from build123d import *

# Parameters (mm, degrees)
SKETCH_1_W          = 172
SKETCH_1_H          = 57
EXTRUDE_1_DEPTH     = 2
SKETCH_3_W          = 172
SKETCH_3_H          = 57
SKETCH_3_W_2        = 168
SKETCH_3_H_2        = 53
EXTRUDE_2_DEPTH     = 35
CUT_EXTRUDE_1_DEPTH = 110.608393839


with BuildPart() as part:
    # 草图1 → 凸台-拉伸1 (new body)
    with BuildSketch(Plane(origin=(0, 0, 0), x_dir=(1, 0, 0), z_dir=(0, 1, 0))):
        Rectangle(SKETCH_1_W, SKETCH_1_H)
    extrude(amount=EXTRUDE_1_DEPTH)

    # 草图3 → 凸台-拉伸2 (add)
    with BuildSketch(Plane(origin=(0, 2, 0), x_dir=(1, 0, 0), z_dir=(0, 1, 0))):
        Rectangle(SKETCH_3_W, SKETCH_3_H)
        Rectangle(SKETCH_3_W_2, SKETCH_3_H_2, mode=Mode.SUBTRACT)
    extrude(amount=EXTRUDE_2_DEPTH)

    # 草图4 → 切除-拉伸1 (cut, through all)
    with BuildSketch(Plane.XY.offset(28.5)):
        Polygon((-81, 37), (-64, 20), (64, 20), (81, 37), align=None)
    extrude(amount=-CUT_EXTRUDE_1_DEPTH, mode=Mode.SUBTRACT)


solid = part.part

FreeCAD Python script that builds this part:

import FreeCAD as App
import Part
import Sketcher

V = App.Vector
Q = App.Units.Quantity

doc = App.newDocument("Part")
body = doc.addObject("PartDesign::Body", "Body")

sketch1 = body.newObject("Sketcher::SketchObject", "Sketch")
sketch1.AttachmentSupport = (doc.getObject("XZ_Plane"), [""])
sketch1.MapMode = "FlatFace"
sketch1.addGeometry([
    Part.LineSegment(V(-86, -28, 0), V(-86, 28, 0)),
    Part.LineSegment(V(-86, 28, 0), V(86, 28, 0)),
    Part.LineSegment(V(86, 28, 0), V(86, -28, 0)),
    Part.LineSegment(V(86, -28, 0), V(-86, -28, 0)),
], False)
sketch1.addConstraint([
    Sketcher.Constraint("Coincident", 0, 2, 1, 1),
    Sketcher.Constraint("Coincident", 1, 2, 2, 1),
    Sketcher.Constraint("Coincident", 2, 2, 3, 1),
    Sketcher.Constraint("Coincident", 3, 2, 0, 1),
    Sketcher.Constraint("Vertical", 0),
    Sketcher.Constraint("Horizontal", 1),
    Sketcher.Constraint("Vertical", 2),
    Sketcher.Constraint("Horizontal", 3),
    Sketcher.Constraint("Symmetric", 0, 2, 2, 2, -1, 1),
    Sketcher.Constraint("DistanceX", 1, 1, 1, 2, Q("172 mm")),
    Sketcher.Constraint("DistanceY", 0, 1, 0, 2, Q("57 mm")),
])
pad1 = body.newObject("PartDesign::Pad", "Pad")
pad1.Profile = sketch1
pad1.Length = 2
pad1.Reversed = True

sketch2 = body.newObject("Sketcher::SketchObject", "Sketch001")
sketch2.AttachmentSupport = (doc.getObject("XZ_Plane"), [""])
sketch2.MapMode = "FlatFace"
sketch2.AttachmentOffset = App.Placement(V(0, 0, -2), App.Rotation())
sketch2.addGeometry([
    Part.LineSegment(V(-86, -28, 0), V(-86, 28, 0)),
    Part.LineSegment(V(-86, 28, 0), V(86, 28, 0)),
    Part.LineSegment(V(86, 28, 0), V(86, -28, 0)),
    Part.LineSegment(V(86, -28, 0), V(-86, -28, 0)),
    Part.LineSegment(V(84, 26, 0), V(-84, 26, 0)),
    Part.LineSegment(V(-84, 26, 0), V(-84, -26, 0)),
    Part.LineSegment(V(-84, -26, 0), V(84, -26, 0)),
    Part.LineSegment(V(84, -26, 0), V(84, 26, 0)),
], False)
sketch2.addConstraint([
    Sketcher.Constraint("Coincident", 0, 2, 1, 1),
    Sketcher.Constraint("Coincident", 1, 2, 2, 1),
    Sketcher.Constraint("Coincident", 2, 2, 3, 1),
    Sketcher.Constraint("Coincident", 3, 2, 0, 1),
    Sketcher.Constraint("Coincident", 4, 2, 5, 1),
    Sketcher.Constraint("Coincident", 5, 2, 6, 1),
    Sketcher.Constraint("Coincident", 6, 2, 7, 1),
    Sketcher.Constraint("Coincident", 7, 2, 4, 1),
    Sketcher.Constraint("Vertical", 0),
    Sketcher.Constraint("Horizontal", 1),
    Sketcher.Constraint("Vertical", 2),
    Sketcher.Constraint("Horizontal", 3),
    Sketcher.Constraint("Horizontal", 4),
    Sketcher.Constraint("Vertical", 5),
    Sketcher.Constraint("Horizontal", 6),
    Sketcher.Constraint("Vertical", 7),
    Sketcher.Constraint("Symmetric", 0, 2, 2, 2, -1, 1),
    Sketcher.Constraint("Symmetric", 4, 2, 6, 2, -1, 1),
    Sketcher.Constraint("DistanceX", 1, 1, 1, 2, Q("172 mm")),
    Sketcher.Constraint("DistanceX", 4, 2, 4, 1, Q("168 mm")),
    Sketcher.Constraint("DistanceY", 0, 1, 0, 2, Q("57 mm")),
    Sketcher.Constraint("DistanceY", 5, 2, 5, 1, Q("53 mm")),
])
pad2 = body.newObject("PartDesign::Pad", "Pad001")
pad2.Profile = sketch2
pad2.Length = 35
pad2.Reversed = True

sketch3 = body.newObject("Sketcher::SketchObject", "Sketch002")
sketch3.AttachmentSupport = (doc.getObject("XY_Plane"), [""])
sketch3.MapMode = "FlatFace"
sketch3.AttachmentOffset = App.Placement(V(0, 0, 28.5), App.Rotation())
sketch3.addGeometry([
    Part.LineSegment(V(-81, 37, 0), V(-64, 20, 0)),
    Part.LineSegment(V(-64, 20, 0), V(64, 20, 0)),
    Part.LineSegment(V(64, 20, 0), V(81, 37, 0)),
    Part.LineSegment(V(81, 37, 0), V(-81, 37, 0)),
], False)
sketch3.addConstraint([
    Sketcher.Constraint("Coincident", 0, 2, 1, 1),
    Sketcher.Constraint("Coincident", 1, 2, 2, 1),
    Sketcher.Constraint("Coincident", 2, 2, 3, 1),
    Sketcher.Constraint("Coincident", 3, 2, 0, 1),
    Sketcher.Constraint("Horizontal", 1),
    Sketcher.Constraint("Horizontal", 3),
    Sketcher.Constraint("Perpendicular", 0, 2),
    Sketcher.Constraint("Equal", 0, 2),
    Sketcher.Constraint("DistanceX", 1, 1, 1, 2, Q("128 mm")),
    Sketcher.Constraint("DistanceX", 3, 2, 3, 1, Q("162 mm")),
    Sketcher.Constraint("DistanceX", 0, 2, -1, 1, Q("64 mm")),
    Sketcher.Constraint("DistanceY", -1, 1, 0, 2, Q("20 mm")),
])
pocket1 = body.newObject("PartDesign::Pocket", "Pocket")
pocket1.Profile = sketch3
pocket1.Type = "ThroughAll"

doc.recompute()
